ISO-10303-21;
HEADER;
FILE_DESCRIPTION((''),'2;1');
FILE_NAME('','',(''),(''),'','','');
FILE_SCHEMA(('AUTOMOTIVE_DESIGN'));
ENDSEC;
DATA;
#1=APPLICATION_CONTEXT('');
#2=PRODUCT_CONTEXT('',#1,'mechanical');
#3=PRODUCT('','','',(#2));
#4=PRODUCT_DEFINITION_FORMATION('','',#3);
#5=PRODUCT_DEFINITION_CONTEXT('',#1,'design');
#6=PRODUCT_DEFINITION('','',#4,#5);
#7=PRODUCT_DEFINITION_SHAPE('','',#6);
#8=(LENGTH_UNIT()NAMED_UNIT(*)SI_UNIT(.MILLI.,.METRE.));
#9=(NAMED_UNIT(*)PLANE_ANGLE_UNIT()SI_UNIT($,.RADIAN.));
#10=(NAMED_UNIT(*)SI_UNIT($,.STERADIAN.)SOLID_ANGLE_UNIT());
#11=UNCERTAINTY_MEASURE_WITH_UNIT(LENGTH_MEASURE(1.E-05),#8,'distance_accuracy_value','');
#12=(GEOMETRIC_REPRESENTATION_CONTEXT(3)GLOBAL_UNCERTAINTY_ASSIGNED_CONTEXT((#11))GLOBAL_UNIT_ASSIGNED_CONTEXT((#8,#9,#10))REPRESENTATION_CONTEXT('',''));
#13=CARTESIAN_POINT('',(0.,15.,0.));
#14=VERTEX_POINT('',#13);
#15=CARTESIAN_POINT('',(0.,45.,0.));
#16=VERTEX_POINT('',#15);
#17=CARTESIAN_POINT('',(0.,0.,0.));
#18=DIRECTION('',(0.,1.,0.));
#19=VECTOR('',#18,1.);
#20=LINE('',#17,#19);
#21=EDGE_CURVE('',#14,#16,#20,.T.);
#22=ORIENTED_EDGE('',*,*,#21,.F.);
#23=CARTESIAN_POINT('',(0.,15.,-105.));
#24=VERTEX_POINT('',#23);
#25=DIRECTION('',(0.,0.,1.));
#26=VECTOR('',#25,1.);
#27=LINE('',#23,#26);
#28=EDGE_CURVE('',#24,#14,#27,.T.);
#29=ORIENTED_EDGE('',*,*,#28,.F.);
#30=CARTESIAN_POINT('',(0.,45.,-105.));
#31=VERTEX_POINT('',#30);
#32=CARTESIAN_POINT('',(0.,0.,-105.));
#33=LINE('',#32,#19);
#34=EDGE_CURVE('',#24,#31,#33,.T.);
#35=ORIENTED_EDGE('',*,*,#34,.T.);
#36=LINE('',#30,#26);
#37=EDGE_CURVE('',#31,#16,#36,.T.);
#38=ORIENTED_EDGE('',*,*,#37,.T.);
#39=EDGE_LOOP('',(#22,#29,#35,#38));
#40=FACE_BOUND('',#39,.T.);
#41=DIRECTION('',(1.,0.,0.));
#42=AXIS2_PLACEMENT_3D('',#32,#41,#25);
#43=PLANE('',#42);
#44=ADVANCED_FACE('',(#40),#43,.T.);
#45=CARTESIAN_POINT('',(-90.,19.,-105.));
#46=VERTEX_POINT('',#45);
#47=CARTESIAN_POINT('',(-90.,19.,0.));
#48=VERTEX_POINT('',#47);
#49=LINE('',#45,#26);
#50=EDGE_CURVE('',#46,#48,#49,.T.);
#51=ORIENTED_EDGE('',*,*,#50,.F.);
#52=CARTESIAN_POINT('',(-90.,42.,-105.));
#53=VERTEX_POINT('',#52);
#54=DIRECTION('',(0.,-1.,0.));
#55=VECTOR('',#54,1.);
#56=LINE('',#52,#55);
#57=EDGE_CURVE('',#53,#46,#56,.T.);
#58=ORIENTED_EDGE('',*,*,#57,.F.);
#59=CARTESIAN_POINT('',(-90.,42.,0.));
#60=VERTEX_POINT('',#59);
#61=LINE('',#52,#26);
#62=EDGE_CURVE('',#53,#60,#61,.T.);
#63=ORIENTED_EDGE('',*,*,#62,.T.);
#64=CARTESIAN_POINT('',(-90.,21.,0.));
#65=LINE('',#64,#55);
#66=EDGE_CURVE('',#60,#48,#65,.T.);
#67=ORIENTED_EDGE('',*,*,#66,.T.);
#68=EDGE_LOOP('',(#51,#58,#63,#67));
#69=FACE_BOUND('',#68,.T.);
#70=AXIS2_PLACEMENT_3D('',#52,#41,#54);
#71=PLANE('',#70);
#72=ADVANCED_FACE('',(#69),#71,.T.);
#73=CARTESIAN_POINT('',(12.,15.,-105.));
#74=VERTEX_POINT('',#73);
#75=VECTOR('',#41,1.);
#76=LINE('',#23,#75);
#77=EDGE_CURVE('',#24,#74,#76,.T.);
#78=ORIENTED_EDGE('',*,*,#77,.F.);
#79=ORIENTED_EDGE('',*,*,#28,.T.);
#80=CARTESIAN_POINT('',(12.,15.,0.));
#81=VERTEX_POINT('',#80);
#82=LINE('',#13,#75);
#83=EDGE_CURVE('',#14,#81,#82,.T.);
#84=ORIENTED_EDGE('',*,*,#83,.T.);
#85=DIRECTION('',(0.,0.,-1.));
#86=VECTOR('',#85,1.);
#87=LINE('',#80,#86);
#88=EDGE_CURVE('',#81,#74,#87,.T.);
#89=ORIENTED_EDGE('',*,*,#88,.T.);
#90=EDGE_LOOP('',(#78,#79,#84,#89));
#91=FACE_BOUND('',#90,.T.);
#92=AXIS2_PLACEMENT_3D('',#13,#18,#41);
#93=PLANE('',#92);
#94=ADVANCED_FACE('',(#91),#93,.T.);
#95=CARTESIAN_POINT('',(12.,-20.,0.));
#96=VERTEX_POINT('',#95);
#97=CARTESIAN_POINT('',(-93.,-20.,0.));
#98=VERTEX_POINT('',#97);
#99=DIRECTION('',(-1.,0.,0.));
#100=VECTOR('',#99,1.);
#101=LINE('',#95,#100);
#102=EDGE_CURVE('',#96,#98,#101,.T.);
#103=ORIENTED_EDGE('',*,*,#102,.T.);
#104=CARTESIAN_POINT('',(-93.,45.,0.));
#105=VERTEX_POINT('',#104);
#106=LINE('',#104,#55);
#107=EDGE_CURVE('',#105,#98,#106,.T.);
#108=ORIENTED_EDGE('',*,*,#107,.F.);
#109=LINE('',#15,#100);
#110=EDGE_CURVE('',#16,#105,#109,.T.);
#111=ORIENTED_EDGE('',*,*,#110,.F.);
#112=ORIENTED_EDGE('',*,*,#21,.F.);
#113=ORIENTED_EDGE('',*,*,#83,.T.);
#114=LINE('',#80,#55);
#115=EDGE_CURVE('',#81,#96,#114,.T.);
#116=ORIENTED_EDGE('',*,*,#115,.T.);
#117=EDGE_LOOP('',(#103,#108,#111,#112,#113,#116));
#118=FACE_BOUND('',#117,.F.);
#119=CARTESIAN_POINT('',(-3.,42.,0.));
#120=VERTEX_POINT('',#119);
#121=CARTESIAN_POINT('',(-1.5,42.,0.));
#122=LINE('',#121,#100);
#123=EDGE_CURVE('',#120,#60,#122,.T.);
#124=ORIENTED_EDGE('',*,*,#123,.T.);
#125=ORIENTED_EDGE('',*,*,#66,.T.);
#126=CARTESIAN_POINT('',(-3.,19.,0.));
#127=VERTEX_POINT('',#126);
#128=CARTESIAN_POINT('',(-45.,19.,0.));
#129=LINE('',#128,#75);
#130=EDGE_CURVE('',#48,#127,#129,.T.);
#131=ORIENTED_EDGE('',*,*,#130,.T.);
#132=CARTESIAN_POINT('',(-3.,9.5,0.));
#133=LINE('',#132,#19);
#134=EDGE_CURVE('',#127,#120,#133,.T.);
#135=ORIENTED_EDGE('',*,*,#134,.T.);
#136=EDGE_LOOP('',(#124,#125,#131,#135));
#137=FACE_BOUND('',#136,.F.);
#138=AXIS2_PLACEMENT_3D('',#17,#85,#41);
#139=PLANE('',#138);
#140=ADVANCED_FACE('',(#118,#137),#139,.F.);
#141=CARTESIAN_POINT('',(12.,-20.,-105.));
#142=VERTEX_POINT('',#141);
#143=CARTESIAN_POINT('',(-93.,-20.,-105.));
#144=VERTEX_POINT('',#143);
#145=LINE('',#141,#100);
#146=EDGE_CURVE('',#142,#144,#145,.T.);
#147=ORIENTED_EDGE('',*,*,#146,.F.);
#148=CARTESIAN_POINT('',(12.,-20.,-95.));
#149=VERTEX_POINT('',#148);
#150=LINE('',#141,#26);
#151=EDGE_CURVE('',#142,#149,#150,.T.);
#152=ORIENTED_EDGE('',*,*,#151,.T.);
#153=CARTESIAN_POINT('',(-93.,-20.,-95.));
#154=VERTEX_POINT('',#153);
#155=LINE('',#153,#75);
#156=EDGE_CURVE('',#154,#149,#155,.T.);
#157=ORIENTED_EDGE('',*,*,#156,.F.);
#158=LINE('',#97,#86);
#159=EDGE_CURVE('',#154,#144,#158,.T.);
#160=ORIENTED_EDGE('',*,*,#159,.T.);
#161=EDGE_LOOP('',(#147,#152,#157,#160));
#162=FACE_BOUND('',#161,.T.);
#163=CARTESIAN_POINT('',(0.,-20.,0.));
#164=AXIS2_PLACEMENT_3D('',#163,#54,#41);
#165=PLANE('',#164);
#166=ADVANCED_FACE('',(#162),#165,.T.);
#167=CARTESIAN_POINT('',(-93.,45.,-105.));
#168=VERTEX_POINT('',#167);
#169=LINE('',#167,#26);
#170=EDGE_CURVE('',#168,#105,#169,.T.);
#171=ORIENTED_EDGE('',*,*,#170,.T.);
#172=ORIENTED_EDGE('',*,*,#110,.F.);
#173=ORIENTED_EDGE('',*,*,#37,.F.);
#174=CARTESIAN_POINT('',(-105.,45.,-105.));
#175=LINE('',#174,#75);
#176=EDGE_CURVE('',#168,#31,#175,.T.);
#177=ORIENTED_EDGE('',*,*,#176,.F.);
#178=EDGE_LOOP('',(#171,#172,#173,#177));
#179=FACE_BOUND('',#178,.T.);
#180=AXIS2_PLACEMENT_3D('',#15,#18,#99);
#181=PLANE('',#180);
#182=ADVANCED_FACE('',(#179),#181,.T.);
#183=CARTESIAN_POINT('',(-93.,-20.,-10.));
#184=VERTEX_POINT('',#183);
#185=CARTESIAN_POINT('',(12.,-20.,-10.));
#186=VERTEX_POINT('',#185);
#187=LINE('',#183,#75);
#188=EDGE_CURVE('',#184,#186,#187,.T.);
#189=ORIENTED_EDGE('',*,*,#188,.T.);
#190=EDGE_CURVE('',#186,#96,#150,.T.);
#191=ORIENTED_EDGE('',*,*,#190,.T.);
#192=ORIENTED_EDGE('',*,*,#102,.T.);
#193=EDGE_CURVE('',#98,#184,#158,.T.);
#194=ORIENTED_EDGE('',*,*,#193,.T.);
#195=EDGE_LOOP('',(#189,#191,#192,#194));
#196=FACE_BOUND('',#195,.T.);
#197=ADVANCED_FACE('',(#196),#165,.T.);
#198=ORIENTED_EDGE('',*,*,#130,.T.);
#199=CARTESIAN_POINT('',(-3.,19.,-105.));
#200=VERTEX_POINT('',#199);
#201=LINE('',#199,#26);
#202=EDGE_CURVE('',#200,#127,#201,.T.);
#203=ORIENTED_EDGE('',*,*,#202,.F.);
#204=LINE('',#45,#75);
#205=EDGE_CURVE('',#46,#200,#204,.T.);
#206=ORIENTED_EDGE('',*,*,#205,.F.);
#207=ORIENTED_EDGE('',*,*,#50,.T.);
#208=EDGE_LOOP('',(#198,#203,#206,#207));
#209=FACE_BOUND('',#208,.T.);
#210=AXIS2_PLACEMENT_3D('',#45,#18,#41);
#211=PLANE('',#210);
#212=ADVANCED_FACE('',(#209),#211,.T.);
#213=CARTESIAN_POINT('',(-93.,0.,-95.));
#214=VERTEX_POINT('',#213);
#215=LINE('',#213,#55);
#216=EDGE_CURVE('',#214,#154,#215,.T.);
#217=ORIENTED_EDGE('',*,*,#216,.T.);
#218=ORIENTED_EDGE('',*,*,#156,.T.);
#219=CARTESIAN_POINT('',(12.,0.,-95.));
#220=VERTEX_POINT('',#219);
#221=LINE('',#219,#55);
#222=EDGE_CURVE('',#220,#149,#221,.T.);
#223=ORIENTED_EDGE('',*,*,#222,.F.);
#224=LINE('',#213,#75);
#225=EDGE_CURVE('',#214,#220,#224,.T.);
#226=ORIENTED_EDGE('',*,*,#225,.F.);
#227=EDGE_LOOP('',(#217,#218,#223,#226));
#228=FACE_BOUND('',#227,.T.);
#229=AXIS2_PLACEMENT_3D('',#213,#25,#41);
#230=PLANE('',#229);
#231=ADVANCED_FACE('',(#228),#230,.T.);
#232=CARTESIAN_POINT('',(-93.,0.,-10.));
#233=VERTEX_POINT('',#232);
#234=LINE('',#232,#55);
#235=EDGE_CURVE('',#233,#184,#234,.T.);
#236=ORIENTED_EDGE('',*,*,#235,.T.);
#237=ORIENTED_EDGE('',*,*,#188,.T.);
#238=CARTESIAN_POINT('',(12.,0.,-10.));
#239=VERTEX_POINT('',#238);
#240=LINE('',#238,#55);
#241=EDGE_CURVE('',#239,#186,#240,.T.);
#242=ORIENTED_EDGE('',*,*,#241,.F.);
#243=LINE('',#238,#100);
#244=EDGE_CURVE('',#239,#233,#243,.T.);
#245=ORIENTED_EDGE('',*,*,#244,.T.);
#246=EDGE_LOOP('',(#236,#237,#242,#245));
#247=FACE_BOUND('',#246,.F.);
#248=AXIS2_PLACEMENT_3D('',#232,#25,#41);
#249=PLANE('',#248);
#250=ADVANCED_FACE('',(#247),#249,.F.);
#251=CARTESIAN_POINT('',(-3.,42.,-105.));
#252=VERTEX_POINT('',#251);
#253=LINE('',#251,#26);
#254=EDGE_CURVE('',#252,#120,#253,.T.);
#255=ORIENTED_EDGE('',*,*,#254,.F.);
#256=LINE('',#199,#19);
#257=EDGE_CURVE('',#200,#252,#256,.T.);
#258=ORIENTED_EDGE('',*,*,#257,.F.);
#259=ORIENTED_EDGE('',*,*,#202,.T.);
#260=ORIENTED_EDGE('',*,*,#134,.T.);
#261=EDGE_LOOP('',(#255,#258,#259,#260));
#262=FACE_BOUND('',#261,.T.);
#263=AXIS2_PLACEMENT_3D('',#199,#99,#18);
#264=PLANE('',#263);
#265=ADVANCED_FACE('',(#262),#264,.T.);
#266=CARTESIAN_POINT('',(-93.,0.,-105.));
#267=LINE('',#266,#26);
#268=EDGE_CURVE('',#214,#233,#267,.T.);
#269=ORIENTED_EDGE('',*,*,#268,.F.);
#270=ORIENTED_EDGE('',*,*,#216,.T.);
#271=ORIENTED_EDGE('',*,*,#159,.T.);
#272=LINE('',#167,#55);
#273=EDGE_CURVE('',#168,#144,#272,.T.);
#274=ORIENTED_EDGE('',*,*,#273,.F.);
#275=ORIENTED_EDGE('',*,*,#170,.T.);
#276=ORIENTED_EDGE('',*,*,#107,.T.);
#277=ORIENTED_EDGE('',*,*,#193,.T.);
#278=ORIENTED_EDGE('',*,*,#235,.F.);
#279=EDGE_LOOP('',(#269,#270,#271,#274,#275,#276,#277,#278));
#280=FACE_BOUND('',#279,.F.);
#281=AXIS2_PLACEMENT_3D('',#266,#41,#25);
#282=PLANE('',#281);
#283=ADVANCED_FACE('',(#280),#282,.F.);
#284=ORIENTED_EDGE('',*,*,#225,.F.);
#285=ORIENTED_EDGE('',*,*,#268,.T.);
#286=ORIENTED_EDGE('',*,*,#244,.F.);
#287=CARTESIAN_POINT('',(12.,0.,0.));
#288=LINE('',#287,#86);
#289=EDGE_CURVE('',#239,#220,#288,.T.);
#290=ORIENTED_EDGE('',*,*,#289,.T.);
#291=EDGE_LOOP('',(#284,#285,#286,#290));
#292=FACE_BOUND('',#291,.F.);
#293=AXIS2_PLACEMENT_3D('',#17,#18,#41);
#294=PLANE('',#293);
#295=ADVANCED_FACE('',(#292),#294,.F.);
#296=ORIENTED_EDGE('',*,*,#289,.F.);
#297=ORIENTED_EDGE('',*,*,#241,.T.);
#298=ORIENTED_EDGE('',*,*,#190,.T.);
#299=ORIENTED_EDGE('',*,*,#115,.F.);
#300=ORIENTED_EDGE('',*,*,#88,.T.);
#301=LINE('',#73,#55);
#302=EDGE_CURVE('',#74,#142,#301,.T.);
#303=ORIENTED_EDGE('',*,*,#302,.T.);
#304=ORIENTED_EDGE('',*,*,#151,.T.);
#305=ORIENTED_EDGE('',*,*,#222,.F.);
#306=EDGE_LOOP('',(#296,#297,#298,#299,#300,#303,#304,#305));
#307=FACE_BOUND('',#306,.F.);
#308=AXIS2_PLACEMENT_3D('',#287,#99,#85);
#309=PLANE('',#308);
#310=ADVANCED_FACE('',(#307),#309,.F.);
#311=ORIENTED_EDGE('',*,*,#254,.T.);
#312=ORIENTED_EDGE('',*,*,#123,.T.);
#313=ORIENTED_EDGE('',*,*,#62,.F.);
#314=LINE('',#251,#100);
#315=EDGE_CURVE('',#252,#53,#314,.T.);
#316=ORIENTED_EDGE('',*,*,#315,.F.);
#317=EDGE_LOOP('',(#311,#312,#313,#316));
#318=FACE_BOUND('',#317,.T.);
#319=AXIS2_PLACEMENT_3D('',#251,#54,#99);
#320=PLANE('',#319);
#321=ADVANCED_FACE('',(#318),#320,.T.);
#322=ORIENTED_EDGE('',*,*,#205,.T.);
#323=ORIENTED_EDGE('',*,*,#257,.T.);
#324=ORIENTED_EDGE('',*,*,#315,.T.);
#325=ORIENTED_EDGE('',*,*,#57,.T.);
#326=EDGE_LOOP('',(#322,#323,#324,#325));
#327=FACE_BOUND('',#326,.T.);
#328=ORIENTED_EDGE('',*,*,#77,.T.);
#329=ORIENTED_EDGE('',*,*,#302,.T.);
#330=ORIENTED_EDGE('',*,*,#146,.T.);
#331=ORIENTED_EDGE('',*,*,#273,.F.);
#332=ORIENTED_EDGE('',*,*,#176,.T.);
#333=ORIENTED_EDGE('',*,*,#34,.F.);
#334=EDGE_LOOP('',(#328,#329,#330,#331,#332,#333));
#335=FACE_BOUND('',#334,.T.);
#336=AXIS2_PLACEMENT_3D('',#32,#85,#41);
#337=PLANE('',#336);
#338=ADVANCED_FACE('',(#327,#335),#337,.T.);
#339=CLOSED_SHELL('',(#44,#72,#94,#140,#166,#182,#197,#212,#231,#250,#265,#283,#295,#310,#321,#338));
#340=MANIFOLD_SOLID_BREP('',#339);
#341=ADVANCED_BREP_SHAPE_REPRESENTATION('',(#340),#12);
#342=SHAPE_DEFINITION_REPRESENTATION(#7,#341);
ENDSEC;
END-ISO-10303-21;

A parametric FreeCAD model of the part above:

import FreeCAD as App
import Part
import Sketcher
from FreeCAD import Vector
Q = App.Units.Quantity

doc = App.newDocument("Part")
body = doc.addObject("PartDesign::Body", "Body")

# Sketch on XZ plane
sketch1 = body.newObject("Sketcher::SketchObject", "Sketch")
sketch1.AttachmentSupport = (doc.getObject("XZ_Plane"), [""])
sketch1.MapMode = "FlatFace"
sketch1.addGeometry(Part.LineSegment(Vector(-93, 0, 0), Vector(0, 0, 0)), False)
sketch1.addGeometry(Part.LineSegment(Vector(0, 0, 0), Vector(0, -105, 0)), False)
sketch1.addGeometry(Part.LineSegment(Vector(0, -105, 0), Vector(-93, -105, 0)), False)
sketch1.addGeometry(Part.LineSegment(Vector(-93, -105, 0), Vector(-93, 0, 0)), False)
sketch1.addConstraint(Sketcher.Constraint("Coincident", 0, 2, 1, 1))
sketch1.addConstraint(Sketcher.Constraint("Coincident", 1, 2, 2, 1))
sketch1.addConstraint(Sketcher.Constraint("Coincident", 2, 2, 3, 1))
sketch1.addConstraint(Sketcher.Constraint("Coincident", 3, 2, 0, 1))
sketch1.addConstraint(Sketcher.Constraint("Horizontal", 0))
sketch1.addConstraint(Sketcher.Constraint("Vertical", 1))
sketch1.addConstraint(Sketcher.Constraint("Horizontal", 2))
sketch1.addConstraint(Sketcher.Constraint("Vertical", 3))
sketch1.addConstraint(Sketcher.Constraint("Coincident", 0, 2, -1, 1))
sketch1.addConstraint(Sketcher.Constraint("DistanceX", 0, 1, 0, 2, Q("93 mm")))
sketch1.addConstraint(Sketcher.Constraint("DistanceY", 1, 2, 1, 1, Q("105 mm")))
pad1 = body.newObject("PartDesign::Pad", "Pad")
pad1.Profile = sketch1
pad1.Length = 45
pad1.Reversed = True

# Sketch on XZ plane
sketch2 = body.newObject("Sketcher::SketchObject", "Sketch001")
sketch2.AttachmentSupport = (doc.getObject("XZ_Plane"), [""])
sketch2.MapMode = "FlatFace"
sketch2.addGeometry(Part.LineSegment(Vector(-93, -105, 0), Vector(12, -105, 0)), False)
sketch2.addGeometry(Part.LineSegment(Vector(12, -105, 0), Vector(12, -95, 0)), False)
sketch2.addGeometry(Part.LineSegment(Vector(12, -95, 0), Vector(-93, -95, 0)), False)
sketch2.addGeometry(Part.LineSegment(Vector(-93, -95, 0), Vector(-93, -105, 0)), False)
sketch2.addGeometry(Part.LineSegment(Vector(-93, 0, 0), Vector(-93, -10, 0)), False)
sketch2.addGeometry(Part.LineSegment(Vector(-93, -10, 0), Vector(12, -10, 0)), False)
sketch2.addGeometry(Part.LineSegment(Vector(12, -10, 0), Vector(12, 0, 0)), False)
sketch2.addGeometry(Part.LineSegment(Vector(12, 0, 0), Vector(-93, 0, 0)), False)
sketch2.addConstraint(Sketcher.Constraint("Coincident", 0, 2, 1, 1))
sketch2.addConstraint(Sketcher.Constraint("Coincident", 1, 2, 2, 1))
sketch2.addConstraint(Sketcher.Constraint("Coincident", 2, 2, 3, 1))
sketch2.addConstraint(Sketcher.Constraint("Coincident", 3, 2, 0, 1))
sketch2.addConstraint(Sketcher.Constraint("Coincident", 4, 2, 5, 1))
sketch2.addConstraint(Sketcher.Constraint("Coincident", 5, 2, 6, 1))
sketch2.addConstraint(Sketcher.Constraint("Coincident", 6, 2, 7, 1))
sketch2.addConstraint(Sketcher.Constraint("Coincident", 7, 2, 4, 1))
sketch2.addConstraint(Sketcher.Constraint("Horizontal", 0))
sketch2.addConstraint(Sketcher.Constraint("Vertical", 1))
sketch2.addConstraint(Sketcher.Constraint("Horizontal", 2))
sketch2.addConstraint(Sketcher.Constraint("Vertical", 3))
sketch2.addConstraint(Sketcher.Constraint("Vertical", 4))
sketch2.addConstraint(Sketcher.Constraint("Horizontal", 5))
sketch2.addConstraint(Sketcher.Constraint("Vertical", 6))
sketch2.addConstraint(Sketcher.Constraint("Horizontal", 7))
sketch2.addConstraint(Sketcher.Constraint("PointOnObject", 6, 2, -1))
sketch2.addConstraint(Sketcher.Constraint("Vertical", 3, 2, 4, 2))
sketch2.addConstraint(Sketcher.Constraint("Vertical", 1, 2, 5, 2))
sketch2.addConstraint(Sketcher.Constraint("Equal", 3, 4))
sketch2.addConstraint(Sketcher.Constraint("DistanceX", 0, 1, 0, 2, Q("105 mm")))
sketch2.addConstraint(Sketcher.Constraint("DistanceY", 1, 1, 1, 2, Q("10 mm")))
sketch2.addConstraint(Sketcher.Constraint("DistanceY", 0, 2, -1, 1, Q("105 mm")))
sketch2.addConstraint(Sketcher.Constraint("DistanceX", -1, 1, 0, 2, Q("12 mm")))
pad2 = body.newObject("PartDesign::Pad", "Pad001")
pad2.Profile = sketch2
pad2.Length = 20

# Sketch on XZ plane
sketch3 = body.newObject("Sketcher::SketchObject", "Sketch002")
sketch3.AttachmentSupport = (doc.getObject("XZ_Plane"), [""])
sketch3.MapMode = "FlatFace"
sketch3.addGeometry(Part.LineSegment(Vector(12, -105, 0), Vector(0, -105, 0)), False)
sketch3.addGeometry(Part.LineSegment(Vector(0, -105, 0), Vector(0, 0, 0)), False)
sketch3.addGeometry(Part.LineSegment(Vector(0, 0, 0), Vector(12, 0, 0)), False)
sketch3.addGeometry(Part.LineSegment(Vector(12, 0, 0), Vector(12, -105, 0)), False)
sketch3.addConstraint(Sketcher.Constraint("Coincident", 0, 2, 1, 1))
sketch3.addConstraint(Sketcher.Constraint("Coincident", 1, 2, 2, 1))
sketch3.addConstraint(Sketcher.Constraint("Coincident", 2, 2, 3, 1))
sketch3.addConstraint(Sketcher.Constraint("Coincident", 3, 2, 0, 1))
sketch3.addConstraint(Sketcher.Constraint("Horizontal", 0))
sketch3.addConstraint(Sketcher.Constraint("Vertical", 1))
sketch3.addConstraint(Sketcher.Constraint("Horizontal", 2))
sketch3.addConstraint(Sketcher.Constraint("Vertical", 3))
sketch3.addConstraint(Sketcher.Constraint("Coincident", 1, 2, -1, 1))
sketch3.addConstraint(Sketcher.Constraint("DistanceX", 0, 2, 0, 1, Q("12 mm")))
sketch3.addConstraint(Sketcher.Constraint("DistanceY", 1, 1, 1, 2, Q("105 mm")))
pad3 = body.newObject("PartDesign::Pad", "Pad002")
pad3.Profile = sketch3
pad3.Length = 15
pad3.Reversed = True

# Sketch on XY plane
sketch4 = body.newObject("Sketcher::SketchObject", "Sketch003")
sketch4.AttachmentSupport = (doc.getObject("XY_Plane"), [""])
sketch4.MapMode = "FlatFace"
sketch4.AttachmentOffset = App.Placement(Vector(0, 0, -105), App.Rotation())
sketch4.addGeometry(Part.LineSegment(Vector(-90, 42, 0), Vector(-3, 42, 0)), False)
sketch4.addGeometry(Part.LineSegment(Vector(-3, 42, 0), Vector(-3, 19, 0)), False)
sketch4.addGeometry(Part.LineSegment(Vector(-3, 19, 0), Vector(-90, 19, 0)), False)
sketch4.addGeometry(Part.LineSegment(Vector(-90, 19, 0), Vector(-90, 42, 0)), False)
sketch4.addConstraint(Sketcher.Constraint("Coincident", 0, 2, 1, 1))
sketch4.addConstraint(Sketcher.Constraint("Coincident", 1, 2, 2, 1))
sketch4.addConstraint(Sketcher.Constraint("Coincident", 2, 2, 3, 1))
sketch4.addConstraint(Sketcher.Constraint("Coincident", 3, 2, 0, 1))
sketch4.addConstraint(Sketcher.Constraint("Horizontal", 0))
sketch4.addConstraint(Sketcher.Constraint("Vertical", 1))
sketch4.addConstraint(Sketcher.Constraint("Horizontal", 2))
sketch4.addConstraint(Sketcher.Constraint("Vertical", 3))
sketch4.addConstraint(Sketcher.Constraint("DistanceY", 1, 2, 1, 1, Q("23 mm")))
sketch4.addConstraint(Sketcher.Constraint("DistanceX", 0, 2, -1, 1, Q("3 mm")))
sketch4.addConstraint(Sketcher.Constraint("DistanceX", 0, 1, 0, 2, Q("87 mm")))
sketch4.addConstraint(Sketcher.Constraint("DistanceY", -1, 1, 0, 2, Q("42 mm")))
pocket1 = body.newObject("PartDesign::Pocket", "Pocket")
pocket1.Profile = sketch4
pocket1.Type = "ThroughAll"
pocket1.Reversed = True

doc.recompute()
